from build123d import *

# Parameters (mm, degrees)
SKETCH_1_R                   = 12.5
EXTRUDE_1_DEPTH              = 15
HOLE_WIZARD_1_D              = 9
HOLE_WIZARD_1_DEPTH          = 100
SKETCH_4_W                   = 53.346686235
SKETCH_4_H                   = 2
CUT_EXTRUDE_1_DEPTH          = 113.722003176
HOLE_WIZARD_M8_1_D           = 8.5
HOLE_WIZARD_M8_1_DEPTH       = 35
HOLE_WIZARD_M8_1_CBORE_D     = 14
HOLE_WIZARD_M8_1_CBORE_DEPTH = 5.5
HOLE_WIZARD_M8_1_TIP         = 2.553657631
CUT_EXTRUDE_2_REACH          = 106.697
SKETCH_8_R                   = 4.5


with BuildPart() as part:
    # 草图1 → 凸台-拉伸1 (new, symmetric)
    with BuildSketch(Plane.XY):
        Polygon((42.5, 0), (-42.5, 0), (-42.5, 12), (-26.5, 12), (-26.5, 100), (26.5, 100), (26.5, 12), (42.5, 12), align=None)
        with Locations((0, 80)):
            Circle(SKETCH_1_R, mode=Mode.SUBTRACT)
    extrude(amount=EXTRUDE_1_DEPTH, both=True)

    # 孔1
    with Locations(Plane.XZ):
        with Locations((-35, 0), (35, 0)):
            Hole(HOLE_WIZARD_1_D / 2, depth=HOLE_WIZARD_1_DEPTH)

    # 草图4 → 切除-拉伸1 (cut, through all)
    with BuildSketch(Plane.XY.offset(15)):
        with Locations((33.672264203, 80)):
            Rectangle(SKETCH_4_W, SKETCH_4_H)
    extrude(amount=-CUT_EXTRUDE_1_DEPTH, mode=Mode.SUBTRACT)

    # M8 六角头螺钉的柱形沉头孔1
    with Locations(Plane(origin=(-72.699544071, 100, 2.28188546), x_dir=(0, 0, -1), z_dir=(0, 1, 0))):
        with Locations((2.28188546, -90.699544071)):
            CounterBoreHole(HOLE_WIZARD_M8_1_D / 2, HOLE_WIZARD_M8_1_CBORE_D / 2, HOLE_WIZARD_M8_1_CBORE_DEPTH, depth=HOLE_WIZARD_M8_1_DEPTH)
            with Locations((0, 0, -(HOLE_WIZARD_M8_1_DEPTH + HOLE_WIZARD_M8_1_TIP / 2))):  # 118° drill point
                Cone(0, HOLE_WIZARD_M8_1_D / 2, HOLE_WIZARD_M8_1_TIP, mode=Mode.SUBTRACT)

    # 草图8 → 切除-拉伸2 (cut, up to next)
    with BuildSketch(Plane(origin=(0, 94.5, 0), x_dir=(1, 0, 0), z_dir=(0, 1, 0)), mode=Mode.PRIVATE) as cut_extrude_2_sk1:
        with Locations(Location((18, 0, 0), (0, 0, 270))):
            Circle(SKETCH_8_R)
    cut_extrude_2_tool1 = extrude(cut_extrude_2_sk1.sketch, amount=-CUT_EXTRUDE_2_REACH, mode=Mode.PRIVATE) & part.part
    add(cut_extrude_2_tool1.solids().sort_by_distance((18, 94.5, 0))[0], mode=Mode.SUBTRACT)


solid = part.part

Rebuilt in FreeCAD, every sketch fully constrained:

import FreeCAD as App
import Part
import Sketcher
Q = App.Units.Quantity

doc = App.newDocument("Part")
body = doc.addObject("PartDesign::Body", "Body")

# Sketch on XY plane
sketch1 = body.newObject("Sketcher::SketchObject", "Sketch")
sketch1.AttachmentSupport = (doc.getObject("XY_Plane"), [""])
sketch1.MapMode = "FlatFace"
sketch1.addGeometry(Part.LineSegment(App.Vector(-42.5, 0, 0), App.Vector(42.5, 0, 0)), False)
sketch1.addGeometry(Part.LineSegment(App.Vector(42.5, 0, 0), App.Vector(42.5, 12, 0)), False)
sketch1.addGeometry(Part.LineSegment(App.Vector(42.5, 12, 0), App.Vector(26.5, 12, 0)), False)
sketch1.addGeometry(Part.LineSegment(App.Vector(26.5, 12, 0), App.Vector(26.5, 100, 0)), False)
sketch1.addGeometry(Part.LineSegment(App.Vector(26.5, 100, 0), App.Vector(-26.5, 100, 0)), False)
sketch1.addGeometry(Part.LineSegment(App.Vector(-26.5, 100, 0), App.Vector(-26.5, 12, 0)), False)
sketch1.addGeometry(Part.LineSegment(App.Vector(-26.5, 12, 0), App.Vector(-42.5, 12, 0)), False)
sketch1.addGeometry(Part.LineSegment(App.Vector(-42.5, 12, 0), App.Vector(-42.5, 0, 0)), False)
sketch1.addGeometry(Part.Circle(App.Vector(0, 80, 0), App.Vector(0, 0, 1), 12.5), False)
sketch1.addConstraint(Sketcher.Constraint("Coincident", 0, 2, 1, 1))
sketch1.addConstraint(Sketcher.Constraint("Coincident", 1, 2, 2, 1))
sketch1.addConstraint(Sketcher.Constraint("Coincident", 2, 2, 3, 1))
sketch1.addConstraint(Sketcher.Constraint("Coincident", 3, 2, 4, 1))
sketch1.addConstraint(Sketcher.Constraint("Coincident", 4, 2, 5, 1))
sketch1.addConstraint(Sketcher.Constraint("Coincident", 5, 2, 6, 1))
sketch1.addConstraint(Sketcher.Constraint("Coincident", 6, 2, 7, 1))
sketch1.addConstraint(Sketcher.Constraint("Coincident", 7, 2, 0, 1))
sketch1.addConstraint(Sketcher.Constraint("Horizontal", 0))
sketch1.addConstraint(Sketcher.Constraint("Vertical", 1))
sketch1.addConstraint(Sketcher.Constraint("Horizontal", 2))
sketch1.addConstraint(Sketcher.Constraint("Vertical", 3))
sketch1.addConstraint(Sketcher.Constraint("Horizontal", 4))
sketch1.addConstraint(Sketcher.Constraint("Vertical", 5))
sketch1.addConstraint(Sketcher.Constraint("Horizontal", 6))
sketch1.addConstraint(Sketcher.Constraint("Vertical", 7))
sketch1.addConstraint(Sketcher.Constraint("Symmetric", 0, 2, 7, 2, -1, 1))
sketch1.addConstraint(Sketcher.Constraint("Symmetric", 2, 2, 5, 2, -2))
sketch1.addConstraint(Sketcher.Constraint("PointOnObject", 8, 3, -2))
sketch1.addConstraint(Sketcher.Constraint("Diameter", 8, Q("25 mm")))
sketch1.addConstraint(Sketcher.Constraint("DistanceX", 0, 1, 0, 2, Q("85 mm")))
sketch1.addConstraint(Sketcher.Constraint("DistanceX", 2, 2, 2, 1, Q("16 mm")))
sketch1.addConstraint(Sketcher.Constraint("DistanceY", 1, 1, 1, 2, Q("12 mm")))
sketch1.addConstraint(Sketcher.Constraint("DistanceY", 3, 1, 3, 2, Q("88 mm")))
sketch1.addConstraint(Sketcher.Constraint("DistanceY", -1, 1, 8, 3, Q("80 mm")))
pad1 = body.newObject("PartDesign::Pad", "Pad")
pad1.Profile = sketch1
pad1.Length = 30
pad1.Midplane = True

# Sketch on XZ plane
sketch2 = body.newObject("Sketcher::SketchObject", "Sketch001")
sketch2.AttachmentSupport = (doc.getObject("XZ_Plane"), [""])
sketch2.MapMode = "FlatFace"
sketch2.addGeometry(Part.Circle(App.Vector(-35, 0, 0), App.Vector(0, 0, 1), 4.5), False)
sketch2.addGeometry(Part.Circle(App.Vector(35, 0, 0), App.Vector(0, 0, 1), 4.5), False)
sketch2.addConstraint(Sketcher.Constraint("Equal", 0, 1))
sketch2.addConstraint(Sketcher.Constraint("Symmetric", 0, 3, 1, 3, -1, 1))
sketch2.addConstraint(Sketcher.Constraint("PointOnObject", 0, 3, -1))
sketch2.addConstraint(Sketcher.Constraint("Diameter", 0, Q("9 mm")))
sketch2.addConstraint(Sketcher.Constraint("DistanceX", 0, 3, -1, 1, Q("35 mm")))
doc.recompute()
hole = body.newObject("PartDesign::Hole", "Hole")
hole.Profile = sketch2
hole.ThreadType = "None"
hole.Diameter = 9
hole.DepthType = "Dimension"
hole.Depth = 100
hole.DrillPoint = "Flat"

# Sketch on XY plane
sketch3 = body.newObject("Sketcher::SketchObject", "Sketch002")
sketch3.AttachmentSupport = (doc.getObject("XY_Plane"), [""])
sketch3.MapMode = "FlatFace"
sketch3.AttachmentOffset = App.Placement(App.Vector(0, 0, 15), App.Rotation())
sketch3.addGeometry(Part.LineSegment(App.Vector(6.998921, 81, 0), App.Vector(6.998921, 79, 0)), False)
sketch3.addGeometry(Part.LineSegment(App.Vector(6.998921, 79, 0), App.Vector(60.345607, 79, 0)), False)
sketch3.addGeometry(Part.LineSegment(App.Vector(60.345607, 79, 0), App.Vector(60.345607, 81, 0)), False)
sketch3.addGeometry(Part.LineSegment(App.Vector(60.345607, 81, 0), App.Vector(6.998921, 81, 0)), False)
sketch3.addConstraint(Sketcher.Constraint("Coincident", 0, 2, 1, 1))
sketch3.addConstraint(Sketcher.Constraint("Coincident", 1, 2, 2, 1))
sketch3.addConstraint(Sketcher.Constraint("Coincident", 2, 2, 3, 1))
sketch3.addConstraint(Sketcher.Constraint("Coincident", 3, 2, 0, 1))
sketch3.addConstraint(Sketcher.Constraint("Vertical", 0))
sketch3.addConstraint(Sketcher.Constraint("Horizontal", 1))
sketch3.addConstraint(Sketcher.Constraint("Vertical", 2))
sketch3.addConstraint(Sketcher.Constraint("Horizontal", 3))
sketch3.addConstraint(Sketcher.Constraint("DistanceY", 0, 2, 0, 1, Q("2 mm")))
sketch3.addConstraint(Sketcher.Constraint("DistanceY", -1, 1, 0, 2, Q("79 mm")))
sketch3.addConstraint(Sketcher.Constraint("DistanceX", 1, 1, 1, 2, Q("53.346686 mm")))
sketch3.addConstraint(Sketcher.Constraint("DistanceX", -1, 1, 0, 2, Q("6.998921 mm")))
pocket1 = body.newObject("PartDesign::Pocket", "Pocket")
pocket1.Profile = sketch3
pocket1.Type = "ThroughAll"

# Sketch on XZ plane
sketch4 = body.newObject("Sketcher::SketchObject", "Sketch003")
sketch4.AttachmentSupport = (doc.getObject("XZ_Plane"), [""])
sketch4.MapMode = "FlatFace"
sketch4.AttachmentOffset = App.Placement(App.Vector(0, 0, -100), App.Rotation())
sketch4.addGeometry(Part.Circle(App.Vector(18, 0, 0), App.Vector(0, 0, 1), 4.25), False)
sketch4.addConstraint(Sketcher.Constraint("PointOnObject", 0, 3, -1))
sketch4.addConstraint(Sketcher.Constraint("Diameter", 0, Q("8.5 mm")))
sketch4.addConstraint(Sketcher.Constraint("DistanceX", -1, 1, 0, 3, Q("18 mm")))
doc.recompute()
hole2 = body.newObject("PartDesign::Hole", "Hole001")
hole2.Profile = sketch4
hole2.ThreadType = "None"
hole2.Diameter = 8.5
hole2.DepthType = "Dimension"
hole2.Depth = 35
hole2.DrillPoint = "Angled"
hole2.DrillPointAngle = 118
hole2.HoleCutType = "Counterbore"
hole2.HoleCutDiameter = 14
hole2.HoleCutDepth = 5.5
hole2.Reversed = True

# Sketch on XZ plane
sketch5 = body.newObject("Sketcher::SketchObject", "Sketch004")
sketch5.AttachmentSupport = (doc.getObject("XZ_Plane"), [""])
sketch5.MapMode = "FlatFace"
sketch5.AttachmentOffset = App.Placement(App.Vector(0, 0, -94.5), App.Rotation())
sketch5.addGeometry(Part.Circle(App.Vector(18, 0, 0), App.Vector(0, 0, 1), 4.5), False)
sketch5.addConstraint(Sketcher.Constraint("PointOnObject", 0, 3, -1))
sketch5.addConstraint(Sketcher.Constraint("Diameter", 0, Q("9 mm")))
sketch5.addConstraint(Sketcher.Constraint("DistanceX", -1, 1, 0, 3, Q("18 mm")))
pocket2 = body.newObject("PartDesign::Pocket", "Pocket001")
pocket2.Profile = sketch5
pocket2.Length = 13.5
pocket2.Reversed = True

doc.recompute()
